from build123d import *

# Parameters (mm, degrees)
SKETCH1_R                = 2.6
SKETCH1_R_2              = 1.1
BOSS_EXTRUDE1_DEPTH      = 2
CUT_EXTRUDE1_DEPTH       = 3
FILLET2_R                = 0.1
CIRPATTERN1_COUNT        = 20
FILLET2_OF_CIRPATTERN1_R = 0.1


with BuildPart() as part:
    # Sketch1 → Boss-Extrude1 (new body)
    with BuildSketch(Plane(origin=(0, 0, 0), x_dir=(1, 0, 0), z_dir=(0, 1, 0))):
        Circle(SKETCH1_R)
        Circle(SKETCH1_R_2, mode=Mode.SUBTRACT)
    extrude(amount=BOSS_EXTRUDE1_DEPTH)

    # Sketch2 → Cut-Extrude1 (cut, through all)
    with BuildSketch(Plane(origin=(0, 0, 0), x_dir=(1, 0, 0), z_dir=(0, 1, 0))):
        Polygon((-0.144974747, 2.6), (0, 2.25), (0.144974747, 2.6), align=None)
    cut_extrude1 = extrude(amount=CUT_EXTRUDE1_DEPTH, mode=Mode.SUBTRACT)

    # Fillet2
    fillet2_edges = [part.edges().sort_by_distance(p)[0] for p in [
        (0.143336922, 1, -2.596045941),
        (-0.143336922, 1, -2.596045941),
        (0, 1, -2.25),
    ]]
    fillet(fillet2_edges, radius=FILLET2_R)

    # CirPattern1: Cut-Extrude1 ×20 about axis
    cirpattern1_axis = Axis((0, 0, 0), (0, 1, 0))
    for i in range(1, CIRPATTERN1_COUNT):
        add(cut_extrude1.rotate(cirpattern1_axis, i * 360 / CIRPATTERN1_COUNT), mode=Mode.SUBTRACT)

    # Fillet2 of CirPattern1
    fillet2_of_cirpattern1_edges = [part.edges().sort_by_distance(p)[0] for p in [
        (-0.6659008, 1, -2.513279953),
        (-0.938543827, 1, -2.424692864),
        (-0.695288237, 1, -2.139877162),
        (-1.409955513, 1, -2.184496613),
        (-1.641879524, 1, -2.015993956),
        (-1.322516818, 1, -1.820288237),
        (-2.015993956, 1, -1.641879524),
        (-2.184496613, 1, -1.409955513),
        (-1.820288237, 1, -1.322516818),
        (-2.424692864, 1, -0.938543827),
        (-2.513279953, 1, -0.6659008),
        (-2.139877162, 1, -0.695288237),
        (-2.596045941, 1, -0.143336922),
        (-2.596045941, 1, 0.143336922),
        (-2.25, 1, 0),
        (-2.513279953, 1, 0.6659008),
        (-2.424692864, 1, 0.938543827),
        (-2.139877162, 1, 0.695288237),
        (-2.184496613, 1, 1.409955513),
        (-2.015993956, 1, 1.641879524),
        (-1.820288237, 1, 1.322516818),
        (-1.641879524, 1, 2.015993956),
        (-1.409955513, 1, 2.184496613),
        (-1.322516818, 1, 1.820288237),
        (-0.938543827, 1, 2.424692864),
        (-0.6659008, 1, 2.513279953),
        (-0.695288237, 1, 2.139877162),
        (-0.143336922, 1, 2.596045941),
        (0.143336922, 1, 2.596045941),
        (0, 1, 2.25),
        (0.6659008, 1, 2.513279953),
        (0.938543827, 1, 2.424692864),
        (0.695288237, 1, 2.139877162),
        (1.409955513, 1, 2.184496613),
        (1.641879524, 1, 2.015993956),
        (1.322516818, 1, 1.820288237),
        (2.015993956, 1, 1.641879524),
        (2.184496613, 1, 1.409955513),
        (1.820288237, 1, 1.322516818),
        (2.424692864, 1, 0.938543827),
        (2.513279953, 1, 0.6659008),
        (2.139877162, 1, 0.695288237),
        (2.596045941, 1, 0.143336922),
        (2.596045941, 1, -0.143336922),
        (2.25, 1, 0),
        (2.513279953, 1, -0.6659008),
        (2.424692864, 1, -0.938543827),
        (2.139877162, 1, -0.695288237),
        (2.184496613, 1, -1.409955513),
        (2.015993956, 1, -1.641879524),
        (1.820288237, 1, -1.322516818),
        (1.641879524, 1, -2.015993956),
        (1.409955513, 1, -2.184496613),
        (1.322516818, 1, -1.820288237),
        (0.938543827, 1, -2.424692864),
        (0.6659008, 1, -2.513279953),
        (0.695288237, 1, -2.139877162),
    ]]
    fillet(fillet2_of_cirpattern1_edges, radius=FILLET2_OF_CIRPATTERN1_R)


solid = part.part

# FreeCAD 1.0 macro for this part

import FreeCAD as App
import Part
import Sketcher
from FreeCAD import Vector
Q = App.Units.Quantity


def edges_at(feature, points):
    """Names of the edges that pass closest to the given points."""
    edges = feature.Shape.Edges
    near = lambda p: min(range(len(edges)), key=lambda i: edges[i].distToShape(Part.Vertex(*p))[0])
    return sorted({f"Edge{near(p) + 1}" for p in points})


def add_polygon(sketch, points):
    """Adds a closed chain of lines whose ends are joined by coincident constraints."""
    first, n = sketch.GeometryCount, len(points)
    for a, b in zip(points, points[1:] + points[:1]):
        sketch.addGeometry(Part.LineSegment(App.Vector(*a, 0), App.Vector(*b, 0)), False)
    for i in range(n):
        sketch.addConstraint(Sketcher.Constraint("Coincident", first + i, 2, first + (i + 1) % n, 1))

doc = App.newDocument("Part")
body = doc.addObject("PartDesign::Body", "Body")

# Sketch on XZ plane
sketch1 = body.newObject("Sketcher::SketchObject", "Sketch")
sketch1.AttachmentSupport = (doc.getObject("XZ_Plane"), [""])
sketch1.MapMode = "FlatFace"
sketch1.addGeometry(Part.Circle(Vector(0, 0, 0), Vector(0, 0, 1), 2.6), False)
sketch1.addGeometry(Part.Circle(Vector(0, 0, 0), Vector(0, 0, 1), 1.1), False)
sketch1.addConstraint(Sketcher.Constraint("Coincident", 0, 3, -1, 1))
sketch1.addConstraint(Sketcher.Constraint("Coincident", 1, 3, -1, 1))
sketch1.addConstraint(Sketcher.Constraint("Diameter", 0, 5.2))
sketch1.addConstraint(Sketcher.Constraint("Diameter", 1, 2.2))
pad1 = body.newObject("PartDesign::Pad", "Pad")
pad1.Profile = sketch1
pad1.Length = 2
pad1.Reversed = True

# Sketch on XZ plane
sketch2 = body.newObject("Sketcher::SketchObject", "Sketch001")
sketch2.AttachmentSupport = (doc.getObject("XZ_Plane"), [""])
sketch2.MapMode = "FlatFace"
add_polygon(sketch2, [(-0.14, -2.6), (0, -2.25), (0.14, -2.6)])  # lines 0-2
sketch2.addConstraint(Sketcher.Constraint("Horizontal", 2))
sketch2.addConstraint(Sketcher.Constraint("PointOnObject", 0, 2, -2))
sketch2.addConstraint(Sketcher.Constraint("Equal", 0, 1))
sketch2.addConstraint(Sketcher.Constraint("Angle", 0, Q("67.5 deg")))
sketch2.addConstraint(Sketcher.Constraint("DistanceY", 1, 2, -1, 1, 2.6))
sketch2.addConstraint(Sketcher.Constraint("DistanceY", 0, 2, -1, 1, 2.25))
pocket1 = body.newObject("PartDesign::Pocket", "Pocket")
pocket1.Profile = sketch2
pocket1.Type = "ThroughAll"
doc.recompute()

fillet = body.newObject("PartDesign::Fillet", "Fillet")
fillet.Base = (pocket1, edges_at(pocket1, [(0.143, 1, -2.596), (-0.143, 1, -2.596), (0, 1, -2.25)]))
fillet.Radius = 0.1
doc.recompute()

polarpattern = body.newObject("PartDesign::PolarPattern", "PolarPattern")
polarpattern.Originals = [pocket1]
polarpattern.Axis = (doc.getObject("Y_Axis"), [""])
polarpattern.Angle = 360
polarpattern.Occurrences = 20
body.Tip = polarpattern
doc.recompute()

fillet2 = body.newObject("PartDesign::Fillet", "Fillet001")
fillet2.Base = (polarpattern, edges_at(polarpattern, [
    (-0.666, 1, -2.513),
    (-0.939, 1, -2.425),
    (-0.695, 1, -2.14),
    (-1.41, 1, -2.184),
    (-1.642, 1, -2.016),
    (-1.323, 1, -1.82),
    (-2.016, 1, -1.642),
    (-2.184, 1, -1.41),
    (-1.82, 1, -1.323),
    (-2.425, 1, -0.939),
    (-2.513, 1, -0.666),
    (-2.14, 1, -0.695),
    (-2.596, 1, -0.143),
    (-2.596, 1, 0.143),
    (-2.25, 1, 0),
    (-2.513, 1, 0.666),
    (-2.425, 1, 0.939),
    (-2.14, 1, 0.695),
    (-2.184, 1, 1.41),
    (-2.016, 1, 1.642),
    (-1.82, 1, 1.323),
    (-1.642, 1, 2.016),
    (-1.41, 1, 2.184),
    (-1.323, 1, 1.82),
    (-0.939, 1, 2.425),
    (-0.666, 1, 2.513),
    (-0.695, 1, 2.14),
    (-0.143, 1, 2.596),
    (0.143, 1, 2.596),
    (0, 1, 2.25),
    (0.666, 1, 2.513),
    (0.939, 1, 2.425),
    (0.695, 1, 2.14),
    (1.41, 1, 2.184),
    (1.642, 1, 2.016),
    (1.323, 1, 1.82),
    (2.016, 1, 1.642),
    (2.184, 1, 1.41),
    (1.82, 1, 1.323),
    (2.425, 1, 0.939),
    (2.513, 1, 0.666),
    (2.14, 1, 0.695),
    (2.596, 1, 0.143),
    (2.596, 1, -0.143),
    (2.25, 1, 0),
    (2.513, 1, -0.666),
    (2.425, 1, -0.939),
    (2.14, 1, -0.695),
    (2.184, 1, -1.41),
    (2.016, 1, -1.642),
    (1.82, 1, -1.323),
    (1.642, 1, -2.016),
    (1.41, 1, -2.184),
    (1.323, 1, -1.82),
    (0.939, 1, -2.425),
    (0.666, 1, -2.513),
    (0.695, 1, -2.14),
]))
fillet2.Radius = 0.1

doc.recompute()
